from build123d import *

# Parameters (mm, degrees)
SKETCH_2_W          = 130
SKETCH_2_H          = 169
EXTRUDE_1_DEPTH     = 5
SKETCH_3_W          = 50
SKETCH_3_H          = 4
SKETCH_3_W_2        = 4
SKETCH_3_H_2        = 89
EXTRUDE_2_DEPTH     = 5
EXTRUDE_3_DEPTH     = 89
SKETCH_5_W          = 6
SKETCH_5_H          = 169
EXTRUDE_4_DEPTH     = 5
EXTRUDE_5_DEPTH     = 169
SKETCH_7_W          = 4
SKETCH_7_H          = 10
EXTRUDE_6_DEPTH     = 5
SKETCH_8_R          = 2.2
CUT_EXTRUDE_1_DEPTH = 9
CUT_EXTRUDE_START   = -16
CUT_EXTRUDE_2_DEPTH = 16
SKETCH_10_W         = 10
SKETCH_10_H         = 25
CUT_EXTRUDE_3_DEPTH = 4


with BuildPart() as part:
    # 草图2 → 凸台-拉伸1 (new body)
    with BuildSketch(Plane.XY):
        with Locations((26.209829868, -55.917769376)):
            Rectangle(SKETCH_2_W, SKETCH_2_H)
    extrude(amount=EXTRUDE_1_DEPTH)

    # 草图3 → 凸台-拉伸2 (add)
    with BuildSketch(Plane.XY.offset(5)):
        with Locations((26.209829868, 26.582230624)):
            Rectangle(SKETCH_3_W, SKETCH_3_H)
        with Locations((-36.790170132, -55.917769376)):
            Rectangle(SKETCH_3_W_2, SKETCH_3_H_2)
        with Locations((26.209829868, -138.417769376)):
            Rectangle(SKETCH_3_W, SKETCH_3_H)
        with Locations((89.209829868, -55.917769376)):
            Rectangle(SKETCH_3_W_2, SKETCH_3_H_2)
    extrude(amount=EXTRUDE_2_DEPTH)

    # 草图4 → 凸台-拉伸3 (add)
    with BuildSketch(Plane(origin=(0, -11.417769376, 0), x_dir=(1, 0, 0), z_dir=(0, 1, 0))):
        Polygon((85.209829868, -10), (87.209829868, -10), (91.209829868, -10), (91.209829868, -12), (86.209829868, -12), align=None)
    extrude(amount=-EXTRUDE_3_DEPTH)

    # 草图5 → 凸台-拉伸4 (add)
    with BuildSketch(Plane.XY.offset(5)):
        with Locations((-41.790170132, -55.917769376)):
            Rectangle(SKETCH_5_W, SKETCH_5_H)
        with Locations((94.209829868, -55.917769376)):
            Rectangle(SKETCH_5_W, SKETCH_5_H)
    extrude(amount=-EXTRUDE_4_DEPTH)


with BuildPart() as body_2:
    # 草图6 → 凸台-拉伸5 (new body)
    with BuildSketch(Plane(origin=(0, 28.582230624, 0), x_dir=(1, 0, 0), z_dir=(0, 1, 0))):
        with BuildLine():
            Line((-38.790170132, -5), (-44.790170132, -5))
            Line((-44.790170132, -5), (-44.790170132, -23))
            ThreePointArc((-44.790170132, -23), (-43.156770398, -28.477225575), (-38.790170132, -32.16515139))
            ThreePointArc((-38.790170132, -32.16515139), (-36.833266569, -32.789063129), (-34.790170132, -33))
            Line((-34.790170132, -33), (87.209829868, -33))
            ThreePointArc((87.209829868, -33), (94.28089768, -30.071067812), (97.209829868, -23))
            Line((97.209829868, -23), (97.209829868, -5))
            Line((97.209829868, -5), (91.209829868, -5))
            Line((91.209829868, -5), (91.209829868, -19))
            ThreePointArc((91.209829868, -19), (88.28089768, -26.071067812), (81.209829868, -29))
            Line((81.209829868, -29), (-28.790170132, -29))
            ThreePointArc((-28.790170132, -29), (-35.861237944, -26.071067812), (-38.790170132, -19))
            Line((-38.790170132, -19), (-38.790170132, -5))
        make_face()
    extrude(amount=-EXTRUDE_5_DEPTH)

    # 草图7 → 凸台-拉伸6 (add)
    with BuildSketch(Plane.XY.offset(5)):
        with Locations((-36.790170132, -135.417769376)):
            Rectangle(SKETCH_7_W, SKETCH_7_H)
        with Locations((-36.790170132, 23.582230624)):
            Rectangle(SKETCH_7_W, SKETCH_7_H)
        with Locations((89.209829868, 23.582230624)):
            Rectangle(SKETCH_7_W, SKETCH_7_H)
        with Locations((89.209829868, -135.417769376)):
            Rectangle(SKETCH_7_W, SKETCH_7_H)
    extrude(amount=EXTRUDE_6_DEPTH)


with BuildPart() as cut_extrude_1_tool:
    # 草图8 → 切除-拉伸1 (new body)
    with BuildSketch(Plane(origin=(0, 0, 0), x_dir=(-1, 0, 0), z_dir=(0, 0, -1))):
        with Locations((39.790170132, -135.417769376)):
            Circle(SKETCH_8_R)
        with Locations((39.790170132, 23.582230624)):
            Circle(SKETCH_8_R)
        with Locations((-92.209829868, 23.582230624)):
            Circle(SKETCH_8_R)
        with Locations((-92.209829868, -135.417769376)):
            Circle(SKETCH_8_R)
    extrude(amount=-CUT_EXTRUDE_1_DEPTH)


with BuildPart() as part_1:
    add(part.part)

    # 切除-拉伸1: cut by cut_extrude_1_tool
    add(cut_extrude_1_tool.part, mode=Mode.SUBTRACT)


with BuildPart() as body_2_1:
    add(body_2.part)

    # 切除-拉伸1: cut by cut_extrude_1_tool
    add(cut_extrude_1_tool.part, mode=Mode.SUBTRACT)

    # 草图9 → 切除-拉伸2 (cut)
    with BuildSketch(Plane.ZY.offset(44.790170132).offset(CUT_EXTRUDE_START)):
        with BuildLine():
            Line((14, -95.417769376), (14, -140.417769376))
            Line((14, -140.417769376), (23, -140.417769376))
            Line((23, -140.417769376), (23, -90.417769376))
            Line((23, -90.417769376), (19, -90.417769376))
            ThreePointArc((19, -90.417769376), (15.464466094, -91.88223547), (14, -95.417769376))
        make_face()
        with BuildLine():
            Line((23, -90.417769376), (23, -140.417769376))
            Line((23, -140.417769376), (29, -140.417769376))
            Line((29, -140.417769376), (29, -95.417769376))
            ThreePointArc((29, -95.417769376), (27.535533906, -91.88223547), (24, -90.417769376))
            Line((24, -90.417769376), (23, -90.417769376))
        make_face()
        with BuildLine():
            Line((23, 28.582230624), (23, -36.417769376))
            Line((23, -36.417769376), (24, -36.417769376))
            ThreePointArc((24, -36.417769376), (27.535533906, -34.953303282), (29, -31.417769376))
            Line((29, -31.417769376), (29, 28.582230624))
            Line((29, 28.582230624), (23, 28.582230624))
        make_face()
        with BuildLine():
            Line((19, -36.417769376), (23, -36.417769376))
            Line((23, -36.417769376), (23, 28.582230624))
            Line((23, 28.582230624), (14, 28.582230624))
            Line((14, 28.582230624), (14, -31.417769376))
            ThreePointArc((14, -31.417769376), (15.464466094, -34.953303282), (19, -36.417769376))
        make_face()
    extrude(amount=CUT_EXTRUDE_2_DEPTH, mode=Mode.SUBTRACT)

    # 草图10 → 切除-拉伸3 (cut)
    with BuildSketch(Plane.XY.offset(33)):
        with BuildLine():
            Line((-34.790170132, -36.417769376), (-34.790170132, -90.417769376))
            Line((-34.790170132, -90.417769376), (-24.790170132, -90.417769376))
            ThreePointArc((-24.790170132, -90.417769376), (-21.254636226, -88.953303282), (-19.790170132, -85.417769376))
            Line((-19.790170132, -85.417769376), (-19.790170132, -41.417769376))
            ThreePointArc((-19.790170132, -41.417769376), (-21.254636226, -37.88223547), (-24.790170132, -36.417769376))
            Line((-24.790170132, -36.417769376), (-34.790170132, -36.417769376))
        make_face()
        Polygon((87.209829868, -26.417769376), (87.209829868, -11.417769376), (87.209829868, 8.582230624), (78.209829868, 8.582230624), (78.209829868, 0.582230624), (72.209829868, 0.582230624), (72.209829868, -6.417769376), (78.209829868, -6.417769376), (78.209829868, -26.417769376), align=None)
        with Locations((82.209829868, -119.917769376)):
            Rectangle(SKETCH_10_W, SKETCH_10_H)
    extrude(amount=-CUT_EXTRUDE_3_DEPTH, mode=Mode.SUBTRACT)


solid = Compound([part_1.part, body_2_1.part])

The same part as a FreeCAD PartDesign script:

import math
import FreeCAD as App
import Part
import Sketcher
Q = App.Units.Quantity


def add_polygon(sketch, points):
    """Adds a closed chain of lines whose ends are joined by coincident constraints."""
    first, n = sketch.GeometryCount, len(points)
    for a, b in zip(points, points[1:] + points[:1]):
        sketch.addGeometry(Part.LineSegment(App.Vector(*a, 0), App.Vector(*b, 0)), False)
    for i in range(n):
        sketch.addConstraint(Sketcher.Constraint("Coincident", first + i, 2, first + (i + 1) % n, 1))

doc = App.newDocument("Part")
params = doc.addObject("Spreadsheet::Sheet", "Params")
for row, (alias, value) in enumerate([
    ("sketch1_width", "130 mm"),
    ("sketch1_height", "169 mm"),
    ("pad1_length", "5 mm"),
    ("sketch2_width", "50 mm"),
    ("sketch2_width2", "4 mm"),
    ("sketch2_height", "89 mm"),
    ("pad2_length", "5 mm"),
    ("sketch3_width", "6 mm"),
    ("sketch3_width2", "5 mm"),
    ("sketch3_height", "2 mm"),
    ("pad3_length", "89 mm"),
    ("sketch4_width", "6 mm"),
    ("sketch4_height", "169 mm"),
    ("pad4_length", "5 mm"),
    ("sketch5_radius", "10 mm"),
    ("sketch5_width", "6 mm"),
    ("sketch5_width2", "122 mm"),
    ("sketch5_height", "18 mm"),
    ("sketch5_height2", "14 mm"),
    ("pad5_length", "169 mm"),
    ("sketch6_width", "4 mm"),
    ("sketch6_height", "10 mm"),
    ("pad6_length", "5 mm"),
    ("sketch7_diameter", "4.4 mm"),
    ("pad7_length", "9 mm"),
    ("sketch8_radius", "5 mm"),
    ("sketch8_width", "45 mm"),
    ("sketch8_width2", "60 mm"),
    ("sketch8_height", "15 mm"),
    ("pocket1_length", "16 mm"),
    ("sketch9_radius", "5 mm"),
    ("sketch9_width", "10 mm"),
    ("sketch9_width2", "9 mm"),
    ("sketch9_width3", "6 mm"),
    ("sketch9_height", "54 mm"),
    ("pocket2_length", "4 mm"),
], start=1):
    params.set(f"A{row}", alias)
    params.set(f"B{row}", "=" + value)
    params.setAlias(f"B{row}", alias)

body = doc.addObject("PartDesign::Body", "Body")

# Sketch on XY plane
sketch1 = body.newObject("Sketcher::SketchObject", "Sketch")
sketch1.AttachmentSupport = (doc.getObject("XY_Plane"), [""])
sketch1.MapMode = "FlatFace"
add_polygon(sketch1, [(-39, 29), (-39, -140), (91, -140), (91, 29)])  # lines 0-3
sketch1.addConstraint(Sketcher.Constraint("Vertical", 0))
sketch1.addConstraint(Sketcher.Constraint("Horizontal", 1))
sketch1.addConstraint(Sketcher.Constraint("Vertical", 2))
sketch1.addConstraint(Sketcher.Constraint("Horizontal", 3))
sketch1.addConstraint(Sketcher.Constraint("DistanceX", 1, 1, 1, 2, Q("130 mm")))
sketch1.addConstraint(Sketcher.Constraint("DistanceY", 0, 2, 0, 1, Q("169 mm")))
sketch1.addConstraint(Sketcher.Constraint("DistanceX", 0, 2, -1, 1, Q("38.79017 mm")))
sketch1.addConstraint(Sketcher.Constraint("DistanceY", 0, 2, -1, 1, Q("140.417769 mm")))
sketch1.setExpression("Constraints[8]", "Params.sketch1_width")
sketch1.setExpression("Constraints[9]", "Params.sketch1_height")
pad1 = body.newObject("PartDesign::Pad", "Pad")
pad1.Profile = sketch1
pad1.setExpression("Length", "Params.pad1_length")

# Sketch on XY plane
sketch2 = body.newObject("Sketcher::SketchObject", "Sketch001")
sketch2.AttachmentSupport = (doc.getObject("XY_Plane"), [""])
sketch2.MapMode = "FlatFace"
sketch2.AttachmentOffset = App.Placement(App.Vector(0, 0, 5), App.Rotation())
add_polygon(sketch2, [(1.2, 28.6), (1.2, 24.6), (51.2, 24.6), (51.2, 28.6)])  # lines 0-3
add_polygon(sketch2, [(-38.8, -11.4), (-38.8, -100.4), (-34.8, -100.4), (-34.8, -11.4)])  # lines 4-7
add_polygon(sketch2, [(1.2, -136.4), (1.2, -140.4), (51.2, -140.4), (51.2, -136.4)])  # lines 8-11
add_polygon(sketch2, [(87.2, -11.4), (87.2, -100.4), (91.2, -100.4), (91.2, -11.4)])  # lines 12-15
sketch2.addConstraint(Sketcher.Constraint("Vertical", 0))
sketch2.addConstraint(Sketcher.Constraint("Horizontal", 1))
sketch2.addConstraint(Sketcher.Constraint("Vertical", 2))
sketch2.addConstraint(Sketcher.Constraint("Horizontal", 3))
sketch2.addConstraint(Sketcher.Constraint("Vertical", 4))
sketch2.addConstraint(Sketcher.Constraint("Horizontal", 5))
sketch2.addConstraint(Sketcher.Constraint("Vertical", 6))
sketch2.addConstraint(Sketcher.Constraint("Horizontal", 7))
sketch2.addConstraint(Sketcher.Constraint("Vertical", 8))
sketch2.addConstraint(Sketcher.Constraint("Horizontal", 9))
sketch2.addConstraint(Sketcher.Constraint("Vertical", 10))
sketch2.addConstraint(Sketcher.Constraint("Horizontal", 11))
sketch2.addConstraint(Sketcher.Constraint("Vertical", 12))
sketch2.addConstraint(Sketcher.Constraint("Horizontal", 13))
sketch2.addConstraint(Sketcher.Constraint("Vertical", 14))
sketch2.addConstraint(Sketcher.Constraint("Horizontal", 15))
sketch2.addConstraint(Sketcher.Constraint("Horizontal", 5, 2, 12, 2))
sketch2.addConstraint(Sketcher.Constraint("Horizontal", 7, 2, 14, 2))
sketch2.addConstraint(Sketcher.Constraint("Vertical", 3, 2, 8, 2))
sketch2.addConstraint(Sketcher.Constraint("Vertical", 2, 2, 9, 2))
sketch2.addConstraint(Sketcher.Constraint("Equal", 7, 13))
sketch2.addConstraint(Sketcher.Constraint("Equal", 15, 0))
sketch2.addConstraint(Sketcher.Constraint("Equal", 2, 8))
sketch2.addConstraint(Sketcher.Constraint("DistanceX", 1, 1, 1, 2, Q("50 mm")))
sketch2.addConstraint(Sketcher.Constraint("DistanceX", 5, 1, 5, 2, Q("4 mm")))
sketch2.addConstraint(Sketcher.Constraint("DistanceY", 4, 2, 4, 1, Q("89 mm")))
sketch2.addConstraint(Sketcher.Constraint("DistanceX", 4, 2, 0, 2, Q("40 mm")))
sketch2.addConstraint(Sketcher.Constraint("DistanceY", 4, 2, 0, 2, Q("125 mm")))
sketch2.addConstraint(Sketcher.Constraint("DistanceY", 8, 2, 5, 2, Q("40 mm")))
sketch2.addConstraint(Sketcher.Constraint("DistanceX", 10, 2, 12, 2, Q("36 mm")))
sketch2.addConstraint(Sketcher.Constraint("DistanceX", -1, 1, 0, 2, Q("1.20983 mm")))
sketch2.addConstraint(Sketcher.Constraint("DistanceY", -1, 1, 0, 2, Q("24.582231 mm")))
sketch2.setExpression("Constraints[39]", "Params.sketch2_width")
sketch2.setExpression("Constraints[40]", "Params.sketch2_width2")
sketch2.setExpression("Constraints[41]", "Params.sketch2_height")
pad2 = body.newObject("PartDesign::Pad", "Pad001")
pad2.Profile = sketch2
pad2.setExpression("Length", "Params.pad2_length")

# Sketch on XZ plane
sketch3 = body.newObject("Sketcher::SketchObject", "Sketch002")
sketch3.AttachmentSupport = (doc.getObject("XZ_Plane"), [""])
sketch3.MapMode = "FlatFace"
sketch3.AttachmentOffset = App.Placement(App.Vector(0, 0, 11.417769), App.Rotation())
add_polygon(sketch3, [(91.2, 10), (85.2, 10), (86.2, 12), (91.2, 12)])  # lines 0-3
sketch3.addConstraint(Sketcher.Constraint("Horizontal", 0))
sketch3.addConstraint(Sketcher.Constraint("Horizontal", 2))
sketch3.addConstraint(Sketcher.Constraint("Vertical", 3))
sketch3.addConstraint(Sketcher.Constraint("DistanceX", 0, 2, 0, 1, Q("6 mm")))
sketch3.addConstraint(Sketcher.Constraint("DistanceX", 2, 1, 2, 2, Q("5 mm")))
sketch3.addConstraint(Sketcher.Constraint("DistanceY", 3, 2, 3, 1, Q("2 mm")))
sketch3.addConstraint(Sketcher.Constraint("DistanceY", -1, 1, 0, 2, Q("10 mm")))
sketch3.addConstraint(Sketcher.Constraint("DistanceX", -1, 1, 0, 2, Q("85.20983 mm")))
sketch3.setExpression("Constraints[7]", "Params.sketch3_width")
sketch3.setExpression("Constraints[8]", "Params.sketch3_width2")
sketch3.setExpression("Constraints[9]", "Params.sketch3_height")
pad3 = body.newObject("PartDesign::Pad", "Pad002")
pad3.Profile = sketch3
pad3.setExpression("Length", "Params.pad3_length")

# Sketch on XY plane
sketch4 = body.newObject("Sketcher::SketchObject", "Sketch003")
sketch4.AttachmentSupport = (doc.getObject("XY_Plane"), [""])
sketch4.MapMode = "FlatFace"
sketch4.AttachmentOffset = App.Placement(App.Vector(0, 0, 5), App.Rotation())
add_polygon(sketch4, [(-45, 29), (-45, -140), (-39, -140), (-39, 29)])  # lines 0-3
add_polygon(sketch4, [(91, 29), (91, -140), (97, -140), (97, 29)])  # lines 4-7
sketch4.addConstraint(Sketcher.Constraint("Vertical", 0))
sketch4.addConstraint(Sketcher.Constraint("Horizontal", 1))
sketch4.addConstraint(Sketcher.Constraint("Vertical", 2))
sketch4.addConstraint(Sketcher.Constraint("Horizontal", 3))
sketch4.addConstraint(Sketcher.Constraint("Vertical", 4))
sketch4.addConstraint(Sketcher.Constraint("Horizontal", 5))
sketch4.addConstraint(Sketcher.Constraint("Vertical", 6))
sketch4.addConstraint(Sketcher.Constraint("Horizontal", 7))
sketch4.addConstraint(Sketcher.Constraint("Horizontal", 1, 2, 4, 2))
sketch4.addConstraint(Sketcher.Constraint("Horizontal", 3, 2, 6, 2))
sketch4.addConstraint(Sketcher.Constraint("Equal", 3, 5))
sketch4.addConstraint(Sketcher.Constraint("DistanceX", 1, 1, 1, 2, Q("6 mm")))
sketch4.addConstraint(Sketcher.Constraint("DistanceY", 0, 2, 0, 1, Q("169 mm")))
sketch4.addConstraint(Sketcher.Constraint("DistanceX", 1, 2, 4, 2, Q("130 mm")))
sketch4.addConstraint(Sketcher.Constraint("DistanceX", 0, 2, -1, 1, Q("44.79017 mm")))
sketch4.addConstraint(Sketcher.Constraint("DistanceY", 0, 2, -1, 1, Q("140.417769 mm")))
sketch4.setExpression("Constraints[19]", "Params.sketch4_width")
sketch4.setExpression("Constraints[20]", "Params.sketch4_height")
pad4 = body.newObject("PartDesign::Pad", "Pad003")
pad4.Profile = sketch4
pad4.setExpression("Length", "Params.pad4_length")
pad4.Reversed = True
body2 = doc.addObject("PartDesign::Body", "Body001")

# Sketch on XZ plane
sketch5 = body2.newObject("Sketcher::SketchObject", "Sketch004")
sketch5.AttachmentSupport = (doc.getObject("XZ_Plane001"), [""])
sketch5.MapMode = "FlatFace"
sketch5.AttachmentOffset = App.Placement(App.Vector(0, 0, -28.582231), App.Rotation())
sketch5.addGeometry(Part.LineSegment(App.Vector(-38.8, 5, 0), App.Vector(-44.8, 5, 0)), False)
sketch5.addGeometry(Part.LineSegment(App.Vector(-44.8, 5, 0), App.Vector(-44.8, 23, 0)), False)
sketch5.addGeometry(Part.ArcOfCircle(Part.Circle(App.Vector(-34.8, 23, 0), App.Vector(0, 0, 1), 10), math.radians(114), math.radians(180)), False)
sketch5.addGeometry(Part.ArcOfCircle(Part.Circle(App.Vector(-34.8, 23, 0), App.Vector(0, 0, 1), 10), math.radians(90), math.radians(114)), False)
sketch5.addGeometry(Part.LineSegment(App.Vector(-34.8, 33, 0), App.Vector(87.2, 33, 0)), False)
sketch5.addGeometry(Part.ArcOfCircle(Part.Circle(App.Vector(87.2, 23, 0), App.Vector(0, 0, 1), 10), math.radians(0), math.radians(90)), False)
sketch5.addGeometry(Part.LineSegment(App.Vector(97.2, 23, 0), App.Vector(97.2, 5, 0)), False)
sketch5.addGeometry(Part.LineSegment(App.Vector(97.2, 5, 0), App.Vector(91.2, 5, 0)), False)
sketch5.addGeometry(Part.LineSegment(App.Vector(91.2, 5, 0), App.Vector(91.2, 19, 0)), False)
sketch5.addGeometry(Part.ArcOfCircle(Part.Circle(App.Vector(81.2, 19, 0), App.Vector(0, 0, 1), 10), math.radians(0), math.radians(90)), False)
sketch5.addGeometry(Part.LineSegment(App.Vector(81.2, 29, 0), App.Vector(-28.8, 29, 0)), False)
sketch5.addGeometry(Part.ArcOfCircle(Part.Circle(App.Vector(-28.8, 19, 0), App.Vector(0, 0, 1), 10), math.radians(90), math.radians(180)), False)
sketch5.addGeometry(Part.LineSegment(App.Vector(-38.8, 19, 0), App.Vector(-38.8, 5, 0)), False)
sketch5.addConstraint(Sketcher.Constraint("Coincident", 0, 2, 1, 1))
sketch5.addConstraint(Sketcher.Constraint("Tangent", 1, 2, 2, 2))
sketch5.addConstraint(Sketcher.Constraint("Tangent", 2, 1, 3, 2))
sketch5.addConstraint(Sketcher.Constraint("Tangent", 3, 1, 4, 1))
sketch5.addConstraint(Sketcher.Constraint("Tangent", 4, 2, 5, 2))
sketch5.addConstraint(Sketcher.Constraint("Tangent", 5, 1, 6, 1))
sketch5.addConstraint(Sketcher.Constraint("Coincident", 6, 2, 7, 1))
sketch5.addConstraint(Sketcher.Constraint("Coincident", 7, 2, 8, 1))
sketch5.addConstraint(Sketcher.Constraint("Tangent", 8, 2, 9, 1))
sketch5.addConstraint(Sketcher.Constraint("Tangent", 9, 2, 10, 1))
sketch5.addConstraint(Sketcher.Constraint("Tangent", 10, 2, 11, 1))
sketch5.addConstraint(Sketcher.Constraint("Tangent", 11, 2, 12, 1))
sketch5.addConstraint(Sketcher.Constraint("Coincident", 12, 2, 0, 1))
sketch5.addConstraint(Sketcher.Constraint("Horizontal", 0))
sketch5.addConstraint(Sketcher.Constraint("Vertical", 1))
sketch5.addConstraint(Sketcher.Constraint("Horizontal", 4))
sketch5.addConstraint(Sketcher.Constraint("Vertical", 6))
sketch5.addConstraint(Sketcher.Constraint("Horizontal", 7))
sketch5.addConstraint(Sketcher.Constraint("Vertical", 8))
sketch5.addConstraint(Sketcher.Constraint("Horizontal", 10))
sketch5.addConstraint(Sketcher.Constraint("Vertical", 12))
sketch5.addConstraint(Sketcher.Constraint("Equal", 2, 3))
sketch5.addConstraint(Sketcher.Constraint("Equal", 3, 5))
sketch5.addConstraint(Sketcher.Constraint("Equal", 5, 9))
sketch5.addConstraint(Sketcher.Constraint("Equal", 9, 11))
sketch5.addConstraint(Sketcher.Constraint("Horizontal", 0, 2, 6, 2))
sketch5.addConstraint(Sketcher.Constraint("Vertical", 2, 1, 11, 2))
sketch5.addConstraint(Sketcher.Constraint("Equal", 0, 7))
sketch5.addConstraint(Sketcher.Constraint("Radius", 2, Q("10 mm")))
sketch5.addConstraint(Sketcher.Constraint("DistanceX", 0, 2, 0, 1, Q("6 mm")))
sketch5.addConstraint(Sketcher.Constraint("DistanceX", 4, 1, 4, 2, Q("122 mm")))
sketch5.addConstraint(Sketcher.Constraint("DistanceY", 1, 1, 1, 2, Q("18 mm")))
sketch5.addConstraint(Sketcher.Constraint("DistanceY", 8, 1, 8, 2, Q("14 mm")))
sketch5.addConstraint(Sketcher.Constraint("DistanceY", -1, 1, 2, 3, Q("23 mm")))
sketch5.addConstraint(Sketcher.Constraint("DistanceX", 2, 3, -1, 1, Q("34.79017 mm")))
sketch5.setExpression("Constraints[28]", "Params.sketch5_radius")
sketch5.setExpression("Constraints[29]", "Params.sketch5_width")
sketch5.setExpression("Constraints[30]", "Params.sketch5_width2")
sketch5.setExpression("Constraints[31]", "Params.sketch5_height")
sketch5.setExpression("Constraints[32]", "Params.sketch5_height2")
pad5 = body2.newObject("PartDesign::Pad", "Pad004")
pad5.Profile = sketch5
pad5.setExpression("Length", "Params.pad5_length")

# Sketch on XY plane
sketch6 = body2.newObject("Sketcher::SketchObject", "Sketch005")
sketch6.AttachmentSupport = (doc.getObject("XY_Plane001"), [""])
sketch6.MapMode = "FlatFace"
sketch6.AttachmentOffset = App.Placement(App.Vector(0, 0, 5), App.Rotation())
add_polygon(sketch6, [(-38.8, -130.4), (-38.8, -140.4), (-34.8, -140.4), (-34.8, -130.4)])  # lines 0-3
add_polygon(sketch6, [(-38.8, 28.6), (-38.8, 18.6), (-34.8, 18.6), (-34.8, 28.6)])  # lines 4-7
add_polygon(sketch6, [(87.2, 28.6), (87.2, 18.6), (91.2, 18.6), (91.2, 28.6)])  # lines 8-11
add_polygon(sketch6, [(87.2, -130.4), (87.2, -140.4), (91.2, -140.4), (91.2, -130.4)])  # lines 12-15
sketch6.addConstraint(Sketcher.Constraint("Vertical", 0))
sketch6.addConstraint(Sketcher.Constraint("Horizontal", 1))
sketch6.addConstraint(Sketcher.Constraint("Vertical", 2))
sketch6.addConstraint(Sketcher.Constraint("Horizontal", 3))
sketch6.addConstraint(Sketcher.Constraint("Vertical", 4))
sketch6.addConstraint(Sketcher.Constraint("Horizontal", 5))
sketch6.addConstraint(Sketcher.Constraint("Vertical", 6))
sketch6.addConstraint(Sketcher.Constraint("Horizontal", 7))
sketch6.addConstraint(Sketcher.Constraint("Vertical", 8))
sketch6.addConstraint(Sketcher.Constraint("Horizontal", 9))
sketch6.addConstraint(Sketcher.Constraint("Vertical", 10))
sketch6.addConstraint(Sketcher.Constraint("Horizontal", 11))
sketch6.addConstraint(Sketcher.Constraint("Vertical", 12))
sketch6.addConstraint(Sketcher.Constraint("Horizontal", 13))
sketch6.addConstraint(Sketcher.Constraint("Vertical", 14))
sketch6.addConstraint(Sketcher.Constraint("Horizontal", 15))
sketch6.addConstraint(Sketcher.Constraint("Horizontal", 5, 2, 8, 2))
sketch6.addConstraint(Sketcher.Constraint("Horizontal", 7, 2, 10, 2))
sketch6.addConstraint(Sketcher.Constraint("Horizontal", 1, 2, 12, 2))
sketch6.addConstraint(Sketcher.Constraint("Horizontal", 3, 2, 14, 2))
sketch6.addConstraint(Sketcher.Constraint("Vertical", 3, 2, 4, 2))
sketch6.addConstraint(Sketcher.Constraint("Vertical", 2, 2, 5, 2))
sketch6.addConstraint(Sketcher.Constraint("Vertical", 11, 2, 12, 2))
sketch6.addConstraint(Sketcher.Constraint("Vertical", 10, 2, 13, 2))
sketch6.addConstraint(Sketcher.Constraint("Equal", 7, 9))
sketch6.addConstraint(Sketcher.Constraint("Equal", 2, 4))
sketch6.addConstraint(Sketcher.Constraint("DistanceX", 1, 1, 1, 2, Q("4 mm")))
sketch6.addConstraint(Sketcher.Constraint("DistanceY", 0, 2, 0, 1, Q("10 mm")))
sketch6.addConstraint(Sketcher.Constraint("DistanceY", 3, 2, 4, 2, Q("149 mm")))
sketch6.addConstraint(Sketcher.Constraint("DistanceX", 5, 2, 8, 2, Q("122 mm")))
sketch6.addConstraint(Sketcher.Constraint("DistanceX", 0, 2, -1, 1, Q("38.79017 mm")))
sketch6.addConstraint(Sketcher.Constraint("DistanceY", 0, 2, -1, 1, Q("140.417769 mm")))
sketch6.setExpression("Constraints[42]", "Params.sketch6_width")
sketch6.setExpression("Constraints[43]", "Params.sketch6_height")
pad6 = body2.newObject("PartDesign::Pad", "Pad005")
pad6.Profile = sketch6
pad6.setExpression("Length", "Params.pad6_length")
body3 = doc.addObject("PartDesign::Body", "Body002")
body3.AllowCompound = True

# Sketch on XY plane
sketch7 = body3.newObject("Sketcher::SketchObject", "Sketch006")
sketch7.AttachmentSupport = (doc.getObject("XY_Plane002"), [""])
sketch7.MapMode = "FlatFace"
sketch7.addGeometry(Part.Circle(App.Vector(-39.8, -135.4, 0), App.Vector(0, 0, 1), 2.2), False)
sketch7.addGeometry(Part.Circle(App.Vector(-39.8, 23.6, 0), App.Vector(0, 0, 1), 2.2), False)
sketch7.addGeometry(Part.Circle(App.Vector(92.2, 23.6, 0), App.Vector(0, 0, 1), 2.2), False)
sketch7.addGeometry(Part.Circle(App.Vector(92.2, -135.4, 0), App.Vector(0, 0, 1), 2.2), False)
sketch7.addConstraint(Sketcher.Constraint("Equal", 0, 1))
sketch7.addConstraint(Sketcher.Constraint("Equal", 1, 2))
sketch7.addConstraint(Sketcher.Constraint("Equal", 2, 3))
sketch7.addConstraint(Sketcher.Constraint("Horizontal", 1, 3, 2, 3))
sketch7.addConstraint(Sketcher.Constraint("Horizontal", 0, 3, 3, 3))
sketch7.addConstraint(Sketcher.Constraint("Vertical", 0, 3, 1, 3))
sketch7.addConstraint(Sketcher.Constraint("Vertical", 2, 3, 3, 3))
sketch7.addConstraint(Sketcher.Constraint("Diameter", 0, Q("4.4 mm")))
sketch7.addConstraint(Sketcher.Constraint("DistanceY", 0, 3, 1, 3, Q("159 mm")))
sketch7.addConstraint(Sketcher.Constraint("DistanceX", 1, 3, 2, 3, Q("132 mm")))
sketch7.addConstraint(Sketcher.Constraint("DistanceX", 0, 3, -1, 1, Q("39.79017 mm")))
sketch7.addConstraint(Sketcher.Constraint("DistanceY", 0, 3, -1, 1, Q("135.417769 mm")))
sketch7.setExpression("Constraints[7]", "Params.sketch7_diameter")
pad7 = body3.newObject("PartDesign::Pad", "Pad006")
pad7.Profile = sketch7
pad7.setExpression("Length", "Params.pad7_length")
doc.recompute()

body4 = doc.addObject("PartDesign::Body", "Body003")
body4.BaseFeature = body3
boolean = body.newObject("PartDesign::Boolean", "Boolean")
boolean.Type = "Cut"
boolean.addObjects([body4])
doc.recompute()

boolean2 = body2.newObject("PartDesign::Boolean", "Boolean001")
boolean2.Type = "Cut"
boolean2.addObjects([body3])

# Sketch on YZ plane
sketch8 = body2.newObject("Sketcher::SketchObject", "Sketch007")
sketch8.AttachmentSupport = (doc.getObject("YZ_Plane001"), [""])
sketch8.MapMode = "FlatFace"
sketch8.AttachmentOffset = App.Placement(App.Vector(0, 0, -28.79017), App.Rotation())
sketch8.addGeometry(Part.LineSegment(App.Vector(-95, 14, 0), App.Vector(-140, 14, 0)), False)
sketch8.addGeometry(Part.LineSegment(App.Vector(-140, 14, 0), App.Vector(-140, 29, 0)), False)
sketch8.addGeometry(Part.LineSegment(App.Vector(-140, 29, 0), App.Vector(-95, 29, 0)), False)
sketch8.addGeometry(Part.ArcOfCircle(Part.Circle(App.Vector(-95, 24, 0), App.Vector(0, 0, 1), 5), math.radians(0), math.radians(90)), False)
sketch8.addGeometry(Part.LineSegment(App.Vector(-90, 24, 0), App.Vector(-90, 19, 0)), False)
sketch8.addGeometry(Part.ArcOfCircle(Part.Circle(App.Vector(-95, 19, 0), App.Vector(0, 0, 1), 5), math.radians(-90), math.radians(0)), False)
sketch8.addGeometry(Part.ArcOfCircle(Part.Circle(App.Vector(-31, 24, 0), App.Vector(0, 0, 1), 5), math.radians(90), math.radians(180)), False)
sketch8.addGeometry(Part.LineSegment(App.Vector(-31, 29, 0), App.Vector(29, 29, 0)), False)
sketch8.addGeometry(Part.LineSegment(App.Vector(29, 29, 0), App.Vector(29, 14, 0)), False)
sketch8.addGeometry(Part.LineSegment(App.Vector(29, 14, 0), App.Vector(-31, 14, 0)), False)
sketch8.addGeometry(Part.ArcOfCircle(Part.Circle(App.Vector(-31, 19, 0), App.Vector(0, 0, 1), 5), math.radians(180), math.radians(270)), False)
sketch8.addGeometry(Part.LineSegment(App.Vector(-36, 19, 0), App.Vector(-36, 24, 0)), False)
sketch8.addConstraint(Sketcher.Constraint("Coincident", 0, 2, 1, 1))
sketch8.addConstraint(Sketcher.Constraint("Coincident", 1, 2, 2, 1))
sketch8.addConstraint(Sketcher.Constraint("Tangent", 2, 2, 3, 2))
sketch8.addConstraint(Sketcher.Constraint("Tangent", 3, 1, 4, 1))
sketch8.addConstraint(Sketcher.Constraint("Tangent", 4, 2, 5, 2))
sketch8.addConstraint(Sketcher.Constraint("Tangent", 5, 1, 0, 1))
sketch8.addConstraint(Sketcher.Constraint("Tangent", 6, 1, 7, 1))
sketch8.addConstraint(Sketcher.Constraint("Coincident", 7, 2, 8, 1))
sketch8.addConstraint(Sketcher.Constraint("Coincident", 8, 2, 9, 1))
sketch8.addConstraint(Sketcher.Constraint("Tangent", 9, 2, 10, 2))
sketch8.addConstraint(Sketcher.Constraint("Tangent", 10, 1, 11, 1))
sketch8.addConstraint(Sketcher.Constraint("Tangent", 11, 2, 6, 2))
sketch8.addConstraint(Sketcher.Constraint("Horizontal", 0))
sketch8.addConstraint(Sketcher.Constraint("Vertical", 1))
sketch8.addConstraint(Sketcher.Constraint("Horizontal", 2))
sketch8.addConstraint(Sketcher.Constraint("Vertical", 4))
sketch8.addConstraint(Sketcher.Constraint("Horizontal", 7))
sketch8.addConstraint(Sketcher.Constraint("Vertical", 8))
sketch8.addConstraint(Sketcher.Constraint("Horizontal", 9))
sketch8.addConstraint(Sketcher.Constraint("Vertical", 11))
sketch8.addConstraint(Sketcher.Constraint("Equal", 3, 5))
sketch8.addConstraint(Sketcher.Constraint("Equal", 5, 6))
sketch8.addConstraint(Sketcher.Constraint("Equal", 6, 10))
sketch8.addConstraint(Sketcher.Constraint("Horizontal", 3, 3, 6, 3))
sketch8.addConstraint(Sketcher.Constraint("Horizontal", 5, 3, 10, 3))
sketch8.addConstraint(Sketcher.Constraint("Radius", 3, Q("5 mm")))
sketch8.addConstraint(Sketcher.Constraint("DistanceX", 0, 2, 0, 1, Q("45 mm")))
sketch8.addConstraint(Sketcher.Constraint("DistanceX", 7, 1, 7, 2, Q("60 mm")))
sketch8.addConstraint(Sketcher.Constraint("DistanceY", 1, 1, 1, 2, Q("15 mm")))
sketch8.addConstraint(Sketcher.Constraint("DistanceY", -1, 1, 3, 3, Q("24 mm")))
sketch8.addConstraint(Sketcher.Constraint("DistanceX", 3, 3, 6, 3, Q("64 mm")))
sketch8.addConstraint(Sketcher.Constraint("DistanceX", 3, 3, -1, 1, Q("95.417769 mm")))
sketch8.setExpression("Constraints[25]", "Params.sketch8_radius")
sketch8.setExpression("Constraints[26]", "Params.sketch8_width")
sketch8.setExpression("Constraints[27]", "Params.sketch8_width2")
sketch8.setExpression("Constraints[28]", "Params.sketch8_height")
pocket1 = body2.newObject("PartDesign::Pocket", "Pocket")
pocket1.Profile = sketch8
pocket1.setExpression("Length", "Params.pocket1_length")

# Sketch on XY plane
sketch9 = body2.newObject("Sketcher::SketchObject", "Sketch008")
sketch9.AttachmentSupport = (doc.getObject("XY_Plane001"), [""])
sketch9.MapMode = "FlatFace"
sketch9.AttachmentOffset = App.Placement(App.Vector(0, 0, 33), App.Rotation())
sketch9.addGeometry(Part.LineSegment(App.Vector(-35, -36, 0), App.Vector(-35, -90, 0)), False)  # 0
sketch9.addGeometry(Part.LineSegment(App.Vector(-35, -90, 0), App.Vector(-25, -90, 0)), False)  # 1
sketch9.addGeometry(Part.ArcOfCircle(Part.Circle(App.Vector(-25, -85, 0), App.Vector(0, 0, 1), 5), math.radians(-90), math.radians(0)), False)  # 2
sketch9.addGeometry(Part.LineSegment(App.Vector(-20, -85, 0), App.Vector(-20, -41, 0)), False)  # 3
sketch9.addGeometry(Part.ArcOfCircle(Part.Circle(App.Vector(-25, -41, 0), App.Vector(0, 0, 1), 5), math.radians(0), math.radians(90)), False)  # 4
sketch9.addGeometry(Part.LineSegment(App.Vector(-25, -36, 0), App.Vector(-35, -36, 0)), False)  # 5
add_polygon(sketch9, [(87, -26), (87, 9), (78, 9), (78, 1), (72, 1), (72, -6), (78, -6), (78, -26)])  # lines 6-13
add_polygon(sketch9, [(77, -107), (77, -132), (87, -132), (87, -107)])  # lines 14-17
sketch9.addConstraint(Sketcher.Constraint("Coincident", 0, 2, 1, 1))
sketch9.addConstraint(Sketcher.Constraint("Tangent", 1, 2, 2, 1))
sketch9.addConstraint(Sketcher.Constraint("Tangent", 2, 2, 3, 1))
sketch9.addConstraint(Sketcher.Constraint("Tangent", 3, 2, 4, 1))
sketch9.addConstraint(Sketcher.Constraint("Tangent", 4, 2, 5, 1))
sketch9.addConstraint(Sketcher.Constraint("Coincident", 5, 2, 0, 1))
sketch9.addConstraint(Sketcher.Constraint("Vertical", 0))
sketch9.addConstraint(Sketcher.Constraint("Horizontal", 1))
sketch9.addConstraint(Sketcher.Constraint("Vertical", 3))
sketch9.addConstraint(Sketcher.Constraint("Horizontal", 5))
sketch9.addConstraint(Sketcher.Constraint("Vertical", 6))
sketch9.addConstraint(Sketcher.Constraint("Horizontal", 7))
sketch9.addConstraint(Sketcher.Constraint("Vertical", 8))
sketch9.addConstraint(Sketcher.Constraint("Horizontal", 9))
sketch9.addConstraint(Sketcher.Constraint("Vertical", 10))
sketch9.addConstraint(Sketcher.Constraint("Horizontal", 11))
sketch9.addConstraint(Sketcher.Constraint("Vertical", 12))
sketch9.addConstraint(Sketcher.Constraint("Horizontal", 13))
sketch9.addConstraint(Sketcher.Constraint("Vertical", 14))
sketch9.addConstraint(Sketcher.Constraint("Horizontal", 15))
sketch9.addConstraint(Sketcher.Constraint("Vertical", 16))
sketch9.addConstraint(Sketcher.Constraint("Horizontal", 17))
sketch9.addConstraint(Sketcher.Constraint("Equal", 2, 4))
sketch9.addConstraint(Sketcher.Constraint("Vertical", 8, 2, 11, 2))
sketch9.addConstraint(Sketcher.Constraint("Vertical", 13, 2, 15, 2))
sketch9.addConstraint(Sketcher.Constraint("Equal", 5, 15))
sketch9.addConstraint(Sketcher.Constraint("Radius", 2, Q("5 mm")))
sketch9.addConstraint(Sketcher.Constraint("DistanceX", 1, 1, 1, 2, Q("10 mm")))
sketch9.addConstraint(Sketcher.Constraint("DistanceX", 7, 2, 7, 1, Q("9 mm")))
sketch9.addConstraint(Sketcher.Constraint("DistanceX", 9, 2, 9, 1, Q("6 mm")))
sketch9.addConstraint(Sketcher.Constraint("DistanceY", 0, 2, 0, 1, Q("54 mm")))
sketch9.addConstraint(Sketcher.Constraint("DistanceY", 6, 1, 6, 2, Q("35 mm")))
sketch9.addConstraint(Sketcher.Constraint("DistanceY", 8, 2, 8, 1, Q("8 mm")))
sketch9.addConstraint(Sketcher.Constraint("DistanceY", 10, 2, 10, 1, Q("7 mm")))
sketch9.addConstraint(Sketcher.Constraint("DistanceY", 14, 2, 14, 1, Q("25 mm")))
sketch9.addConstraint(Sketcher.Constraint("DistanceX", 3, 2, 6, 2, Q("107 mm")))
sketch9.addConstraint(Sketcher.Constraint("DistanceY", 3, 2, 6, 2, Q("50 mm")))
sketch9.addConstraint(Sketcher.Constraint("DistanceY", 14, 2, 12, 2, Q("106 mm")))
sketch9.addConstraint(Sketcher.Constraint("DistanceX", 2, 3, -1, 1, Q("24.79017 mm")))
sketch9.addConstraint(Sketcher.Constraint("DistanceY", 2, 3, -1, 1, Q("85.417769 mm")))
sketch9.setExpression("Constraints[38]", "Params.sketch9_radius")
sketch9.setExpression("Constraints[39]", "Params.sketch9_width")
sketch9.setExpression("Constraints[40]", "Params.sketch9_width2")
sketch9.setExpression("Constraints[41]", "Params.sketch9_width3")
sketch9.setExpression("Constraints[42]", "Params.sketch9_height")
pocket2 = body2.newObject("PartDesign::Pocket", "Pocket001")
pocket2.Profile = sketch9
pocket2.setExpression("Length", "Params.pocket2_length")

doc.recompute()
